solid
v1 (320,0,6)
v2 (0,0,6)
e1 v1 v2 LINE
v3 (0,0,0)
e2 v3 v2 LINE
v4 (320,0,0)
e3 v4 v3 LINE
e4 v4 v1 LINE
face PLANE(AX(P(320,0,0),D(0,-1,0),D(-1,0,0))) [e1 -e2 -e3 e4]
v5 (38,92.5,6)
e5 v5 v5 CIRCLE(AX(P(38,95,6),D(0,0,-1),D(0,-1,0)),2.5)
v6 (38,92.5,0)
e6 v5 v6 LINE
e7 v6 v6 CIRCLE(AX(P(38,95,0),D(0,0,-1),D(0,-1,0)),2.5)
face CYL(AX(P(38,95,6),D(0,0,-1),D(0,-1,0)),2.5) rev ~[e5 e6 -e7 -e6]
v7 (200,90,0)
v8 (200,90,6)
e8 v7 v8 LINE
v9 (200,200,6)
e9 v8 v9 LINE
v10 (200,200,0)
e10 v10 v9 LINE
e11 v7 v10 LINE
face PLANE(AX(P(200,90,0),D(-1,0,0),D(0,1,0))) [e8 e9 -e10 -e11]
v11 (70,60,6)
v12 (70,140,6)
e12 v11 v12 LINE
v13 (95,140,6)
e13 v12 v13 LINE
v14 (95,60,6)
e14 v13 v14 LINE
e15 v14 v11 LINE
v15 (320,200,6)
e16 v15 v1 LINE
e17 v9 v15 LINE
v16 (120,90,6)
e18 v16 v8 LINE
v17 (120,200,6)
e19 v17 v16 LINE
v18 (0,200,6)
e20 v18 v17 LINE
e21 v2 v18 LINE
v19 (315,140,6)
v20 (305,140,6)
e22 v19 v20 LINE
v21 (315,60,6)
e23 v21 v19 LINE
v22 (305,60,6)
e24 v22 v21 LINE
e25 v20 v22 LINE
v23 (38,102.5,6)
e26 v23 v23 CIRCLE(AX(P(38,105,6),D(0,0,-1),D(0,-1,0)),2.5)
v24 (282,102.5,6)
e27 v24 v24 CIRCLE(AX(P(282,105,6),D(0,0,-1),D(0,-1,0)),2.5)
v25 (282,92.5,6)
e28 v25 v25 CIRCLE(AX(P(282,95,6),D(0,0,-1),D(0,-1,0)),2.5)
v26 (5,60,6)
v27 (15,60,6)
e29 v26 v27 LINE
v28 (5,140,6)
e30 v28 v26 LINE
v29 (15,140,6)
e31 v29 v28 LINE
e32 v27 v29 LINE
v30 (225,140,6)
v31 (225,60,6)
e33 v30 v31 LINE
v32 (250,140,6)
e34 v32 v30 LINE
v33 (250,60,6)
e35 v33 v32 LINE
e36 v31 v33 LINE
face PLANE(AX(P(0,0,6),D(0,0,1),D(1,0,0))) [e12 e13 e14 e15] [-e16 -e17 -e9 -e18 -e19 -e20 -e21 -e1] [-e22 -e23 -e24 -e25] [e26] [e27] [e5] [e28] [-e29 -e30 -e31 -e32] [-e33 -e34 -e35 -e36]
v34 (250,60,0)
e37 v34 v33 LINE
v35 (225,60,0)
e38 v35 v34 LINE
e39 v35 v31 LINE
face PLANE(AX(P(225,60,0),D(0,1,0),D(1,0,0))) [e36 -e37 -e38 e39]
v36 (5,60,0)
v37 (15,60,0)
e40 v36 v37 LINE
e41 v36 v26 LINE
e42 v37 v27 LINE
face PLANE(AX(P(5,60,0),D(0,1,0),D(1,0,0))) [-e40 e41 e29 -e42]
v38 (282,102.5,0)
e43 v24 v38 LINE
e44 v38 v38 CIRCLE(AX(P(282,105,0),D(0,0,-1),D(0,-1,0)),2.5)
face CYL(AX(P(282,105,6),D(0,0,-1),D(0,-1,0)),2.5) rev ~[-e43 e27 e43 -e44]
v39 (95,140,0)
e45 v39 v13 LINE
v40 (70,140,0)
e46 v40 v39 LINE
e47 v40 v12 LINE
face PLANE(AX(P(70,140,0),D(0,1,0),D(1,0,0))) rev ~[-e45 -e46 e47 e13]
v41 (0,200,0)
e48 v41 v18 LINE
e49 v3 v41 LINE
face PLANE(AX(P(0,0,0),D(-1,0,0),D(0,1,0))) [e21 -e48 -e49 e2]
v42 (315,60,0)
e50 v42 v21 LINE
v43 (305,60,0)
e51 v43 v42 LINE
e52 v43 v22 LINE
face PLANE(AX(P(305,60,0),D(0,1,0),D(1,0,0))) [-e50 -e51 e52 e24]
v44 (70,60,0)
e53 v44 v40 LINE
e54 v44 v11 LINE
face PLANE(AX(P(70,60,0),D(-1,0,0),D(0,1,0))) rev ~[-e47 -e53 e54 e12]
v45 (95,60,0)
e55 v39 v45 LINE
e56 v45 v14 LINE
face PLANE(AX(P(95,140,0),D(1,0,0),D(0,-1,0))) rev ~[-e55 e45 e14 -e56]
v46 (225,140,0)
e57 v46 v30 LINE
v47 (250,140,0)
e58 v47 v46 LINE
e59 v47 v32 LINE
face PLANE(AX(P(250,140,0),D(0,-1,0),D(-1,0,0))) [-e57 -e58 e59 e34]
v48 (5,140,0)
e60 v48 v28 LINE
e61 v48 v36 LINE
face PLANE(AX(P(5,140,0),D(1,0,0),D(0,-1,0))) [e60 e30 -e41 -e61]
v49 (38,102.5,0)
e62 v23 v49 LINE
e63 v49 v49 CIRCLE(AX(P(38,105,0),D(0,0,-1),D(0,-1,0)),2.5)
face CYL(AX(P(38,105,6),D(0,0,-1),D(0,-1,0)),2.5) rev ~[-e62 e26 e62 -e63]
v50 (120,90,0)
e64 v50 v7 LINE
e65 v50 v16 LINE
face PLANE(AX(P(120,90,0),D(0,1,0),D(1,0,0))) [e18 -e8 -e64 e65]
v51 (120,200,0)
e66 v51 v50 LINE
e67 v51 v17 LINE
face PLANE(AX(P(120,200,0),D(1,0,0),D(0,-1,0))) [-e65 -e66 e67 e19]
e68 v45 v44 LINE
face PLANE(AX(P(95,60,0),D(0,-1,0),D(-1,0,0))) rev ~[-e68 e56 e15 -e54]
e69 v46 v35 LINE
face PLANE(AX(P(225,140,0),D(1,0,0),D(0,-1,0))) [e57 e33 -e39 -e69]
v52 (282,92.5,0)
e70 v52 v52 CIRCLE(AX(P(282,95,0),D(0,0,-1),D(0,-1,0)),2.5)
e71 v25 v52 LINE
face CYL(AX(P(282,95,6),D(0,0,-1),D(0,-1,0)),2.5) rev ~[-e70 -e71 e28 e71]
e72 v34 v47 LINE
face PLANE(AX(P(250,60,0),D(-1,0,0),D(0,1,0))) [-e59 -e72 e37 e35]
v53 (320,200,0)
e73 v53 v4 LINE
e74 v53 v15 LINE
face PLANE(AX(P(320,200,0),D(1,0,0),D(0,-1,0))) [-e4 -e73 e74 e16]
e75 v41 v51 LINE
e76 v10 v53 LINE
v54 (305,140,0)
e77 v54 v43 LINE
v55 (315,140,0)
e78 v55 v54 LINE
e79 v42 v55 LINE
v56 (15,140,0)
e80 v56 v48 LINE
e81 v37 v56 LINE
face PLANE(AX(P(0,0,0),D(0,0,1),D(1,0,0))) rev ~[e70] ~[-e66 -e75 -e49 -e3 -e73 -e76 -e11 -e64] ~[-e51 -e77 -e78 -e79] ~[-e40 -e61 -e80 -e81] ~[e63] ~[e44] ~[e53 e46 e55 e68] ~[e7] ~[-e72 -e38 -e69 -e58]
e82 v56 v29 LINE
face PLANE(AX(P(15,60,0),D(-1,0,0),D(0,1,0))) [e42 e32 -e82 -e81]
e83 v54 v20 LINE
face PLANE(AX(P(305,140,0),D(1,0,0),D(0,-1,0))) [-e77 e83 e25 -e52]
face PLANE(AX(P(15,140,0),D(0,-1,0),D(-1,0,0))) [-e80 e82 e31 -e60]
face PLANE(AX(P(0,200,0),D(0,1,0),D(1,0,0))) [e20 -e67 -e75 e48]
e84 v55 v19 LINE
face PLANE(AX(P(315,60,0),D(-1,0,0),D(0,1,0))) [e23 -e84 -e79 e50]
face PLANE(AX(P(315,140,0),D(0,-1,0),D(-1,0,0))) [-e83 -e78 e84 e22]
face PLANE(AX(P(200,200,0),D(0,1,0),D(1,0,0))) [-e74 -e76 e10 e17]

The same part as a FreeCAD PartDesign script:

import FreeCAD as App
import Part
import Sketcher

doc = App.newDocument("Part")
body = doc.addObject("PartDesign::Body", "Body")

# Sketch on XY plane
sketch1 = doc.addObject("Sketcher::SketchObject", "Sketch")
body.addObject(sketch1)
sketch1.AttachmentSupport = (doc.XY_Plane, [""])
sketch1.MapMode = "FlatFace"
sketch1.addGeometry(Part.LineSegment(App.Vector(0, 200, 0), App.Vector(0, 0, 0)), False)
sketch1.addGeometry(Part.LineSegment(App.Vector(0, 0, 0), App.Vector(320, 0, 0)), False)
sketch1.addGeometry(Part.LineSegment(App.Vector(320, 0, 0), App.Vector(320, 200, 0)), False)
sketch1.addGeometry(Part.LineSegment(App.Vector(320, 200, 0), App.Vector(200, 200, 0)), False)
sketch1.addGeometry(Part.LineSegment(App.Vector(200, 200, 0), App.Vector(200, 90, 0)), False)
sketch1.addGeometry(Part.LineSegment(App.Vector(200, 90, 0), App.Vector(120, 90, 0)), False)
sketch1.addGeometry(Part.LineSegment(App.Vector(120, 90, 0), App.Vector(120, 200, 0)), False)
sketch1.addGeometry(Part.LineSegment(App.Vector(120, 200, 0), App.Vector(0, 200, 0)), False)
sketch1.addGeometry(Part.LineSegment(App.Vector(15, 60, 0), App.Vector(5, 60, 0)), False)
sketch1.addGeometry(Part.LineSegment(App.Vector(5, 60, 0), App.Vector(5, 140, 0)), False)
sketch1.addGeometry(Part.LineSegment(App.Vector(5, 140, 0), App.Vector(15, 140, 0)), False)
sketch1.addGeometry(Part.LineSegment(App.Vector(15, 140, 0), App.Vector(15, 60, 0)), False)
sketch1.addGeometry(Part.LineSegment(App.Vector(70, 60, 0), App.Vector(70, 140, 0)), False)
sketch1.addGeometry(Part.LineSegment(App.Vector(70, 140, 0), App.Vector(95, 140, 0)), False)
sketch1.addGeometry(Part.LineSegment(App.Vector(95, 140, 0), App.Vector(95, 60, 0)), False)
sketch1.addGeometry(Part.LineSegment(App.Vector(95, 60, 0), App.Vector(70, 60, 0)), False)
sketch1.addGeometry(Part.LineSegment(App.Vector(225, 140, 0), App.Vector(250, 140, 0)), False)
sketch1.addGeometry(Part.LineSegment(App.Vector(250, 140, 0), App.Vector(250, 60, 0)), False)
sketch1.addGeometry(Part.LineSegment(App.Vector(250, 60, 0), App.Vector(225, 60, 0)), False)
sketch1.addGeometry(Part.LineSegment(App.Vector(225, 60, 0), App.Vector(225, 140, 0)), False)
sketch1.addGeometry(Part.LineSegment(App.Vector(305, 140, 0), App.Vector(315, 140, 0)), False)
sketch1.addGeometry(Part.LineSegment(App.Vector(315, 140, 0), App.Vector(315, 60, 0)), False)
sketch1.addGeometry(Part.LineSegment(App.Vector(315, 60, 0), App.Vector(305, 60, 0)), False)
sketch1.addGeometry(Part.LineSegment(App.Vector(305, 60, 0), App.Vector(305, 140, 0)), False)
sketch1.addConstraint(Sketcher.Constraint("Coincident", 0, 2, 1, 1))
sketch1.addConstraint(Sketcher.Constraint("Coincident", 1, 2, 2, 1))
sketch1.addConstraint(Sketcher.Constraint("Coincident", 2, 2, 3, 1))
sketch1.addConstraint(Sketcher.Constraint("Coincident", 3, 2, 4, 1))
sketch1.addConstraint(Sketcher.Constraint("Coincident", 4, 2, 5, 1))
sketch1.addConstraint(Sketcher.Constraint("Coincident", 5, 2, 6, 1))
sketch1.addConstraint(Sketcher.Constraint("Coincident", 6, 2, 7, 1))
sketch1.addConstraint(Sketcher.Constraint("Coincident", 7, 2, 0, 1))
sketch1.addConstraint(Sketcher.Constraint("Coincident", 8, 2, 9, 1))
sketch1.addConstraint(Sketcher.Constraint("Coincident", 9, 2, 10, 1))
sketch1.addConstraint(Sketcher.Constraint("Coincident", 10, 2, 11, 1))
sketch1.addConstraint(Sketcher.Constraint("Coincident", 11, 2, 8, 1))
sketch1.addConstraint(Sketcher.Constraint("Coincident", 12, 2, 13, 1))
sketch1.addConstraint(Sketcher.Constraint("Coincident", 13, 2, 14, 1))
sketch1.addConstraint(Sketcher.Constraint("Coincident", 14, 2, 15, 1))
sketch1.addConstraint(Sketcher.Constraint("Coincident", 15, 2, 12, 1))
sketch1.addConstraint(Sketcher.Constraint("Coincident", 16, 2, 17, 1))
sketch1.addConstraint(Sketcher.Constraint("Coincident", 17, 2, 18, 1))
sketch1.addConstraint(Sketcher.Constraint("Coincident", 18, 2, 19, 1))
sketch1.addConstraint(Sketcher.Constraint("Coincident", 19, 2, 16, 1))
sketch1.addConstraint(Sketcher.Constraint("Coincident", 20, 2, 21, 1))
sketch1.addConstraint(Sketcher.Constraint("Coincident", 21, 2, 22, 1))
sketch1.addConstraint(Sketcher.Constraint("Coincident", 22, 2, 23, 1))
sketch1.addConstraint(Sketcher.Constraint("Coincident", 23, 2, 20, 1))
sketch1.addConstraint(Sketcher.Constraint("Vertical", 0))
sketch1.addConstraint(Sketcher.Constraint("Horizontal", 1))
sketch1.addConstraint(Sketcher.Constraint("Vertical", 2))
sketch1.addConstraint(Sketcher.Constraint("Horizontal", 3))
sketch1.addConstraint(Sketcher.Constraint("Vertical", 4))
sketch1.addConstraint(Sketcher.Constraint("Horizontal", 5))
sketch1.addConstraint(Sketcher.Constraint("Vertical", 6))
sketch1.addConstraint(Sketcher.Constraint("Horizontal", 7))
sketch1.addConstraint(Sketcher.Constraint("Horizontal", 8))
sketch1.addConstraint(Sketcher.Constraint("Vertical", 9))
sketch1.addConstraint(Sketcher.Constraint("Horizontal", 10))
sketch1.addConstraint(Sketcher.Constraint("Vertical", 11))
sketch1.addConstraint(Sketcher.Constraint("Vertical", 12))
sketch1.addConstraint(Sketcher.Constraint("Horizontal", 13))
sketch1.addConstraint(Sketcher.Constraint("Vertical", 14))
sketch1.addConstraint(Sketcher.Constraint("Horizontal", 15))
sketch1.addConstraint(Sketcher.Constraint("Horizontal", 16))
sketch1.addConstraint(Sketcher.Constraint("Vertical", 17))
sketch1.addConstraint(Sketcher.Constraint("Horizontal", 18))
sketch1.addConstraint(Sketcher.Constraint("Vertical", 19))
sketch1.addConstraint(Sketcher.Constraint("Horizontal", 20))
sketch1.addConstraint(Sketcher.Constraint("Vertical", 21))
sketch1.addConstraint(Sketcher.Constraint("Horizontal", 22))
sketch1.addConstraint(Sketcher.Constraint("Vertical", 23))
sketch1.addConstraint(Sketcher.Constraint("Coincident", 0, 2, -1, 1))
sketch1.addConstraint(Sketcher.Constraint("Horizontal", 3, 2, 6, 2))
sketch1.addConstraint(Sketcher.Constraint("Horizontal", 10, 2, 12, 2))
sketch1.addConstraint(Sketcher.Constraint("Horizontal", 11, 2, 14, 2))
sketch1.addConstraint(Sketcher.Constraint("Horizontal", 13, 2, 16, 2))
sketch1.addConstraint(Sketcher.Constraint("Horizontal", 15, 2, 17, 2))
sketch1.addConstraint(Sketcher.Constraint("Horizontal", 19, 2, 20, 2))
sketch1.addConstraint(Sketcher.Constraint("Horizontal", 18, 2, 21, 2))
sketch1.addConstraint(Sketcher.Constraint("Equal", 3, 7))
sketch1.addConstraint(Sketcher.Constraint("Equal", 15, 16))
sketch1.addConstraint(Sketcher.Constraint("Equal", 10, 20))
sketch1.addConstraint(Sketcher.Constraint("Equal", 5, 9))
sketch1.addConstraint(Sketcher.Constraint("DistanceX", 1, 1, 1, 2, 320.0))
sketch1.addConstraint(Sketcher.Constraint("DistanceX", 5, 2, 5, 1, 80.0))
sketch1.addConstraint(Sketcher.Constraint("DistanceX", 8, 2, 8, 1, 10.0))
sketch1.addConstraint(Sketcher.Constraint("DistanceX", 13, 1, 13, 2, 25.0))
sketch1.addConstraint(Sketcher.Constraint("DistanceY", 0, 2, 0, 1, 200.0))
sketch1.addConstraint(Sketcher.Constraint("DistanceY", 4, 2, 4, 1, 110.0))
sketch1.addConstraint(Sketcher.Constraint("DistanceX", -1, 1, 8, 2, 5.0))
sketch1.addConstraint(Sketcher.Constraint("DistanceY", -1, 1, 8, 2, 60.0))
sketch1.addConstraint(Sketcher.Constraint("DistanceX", 10, 2, 12, 2, 55.0))
sketch1.addConstraint(Sketcher.Constraint("DistanceX", 4, 2, 18, 2, 25.0))
sketch1.addConstraint(Sketcher.Constraint("DistanceX", 20, 2, 2, 2, 5.0))
pad1 = doc.addObject("PartDesign::Pad", "Pad")
body.addObject(pad1)
pad1.Profile = sketch1
pad1.Length = 6

# Sketch on XY plane
sketch2 = doc.addObject("Sketcher::SketchObject", "Sketch001")
body.addObject(sketch2)
sketch2.AttachmentSupport = (doc.XY_Plane, [""])
sketch2.MapMode = "FlatFace"
sketch2.AttachmentOffset = App.Placement(App.Vector(0, 0, 6), App.Rotation())
sketch2.addGeometry(Part.Circle(App.Vector(38, 105, 0), App.Vector(0, 0, 1), 2.5), False)
sketch2.addConstraint(Sketcher.Constraint("Diameter", 0, 5.0))
sketch2.addConstraint(Sketcher.Constraint("DistanceX", -1, 1, 0, 3, 38.0))
sketch2.addConstraint(Sketcher.Constraint("DistanceY", -1, 1, 0, 3, 105.0))
doc.recompute()
hole = doc.addObject("PartDesign::Hole", "Hole")
body.addObject(hole)
hole.Profile = sketch2
hole.ThreadType = "None"
hole.Diameter = 5
hole.DepthType = "Dimension"
hole.Depth = 8
hole.DrillPoint = "Angled"
hole.DrillPointAngle = 118

# Sketch on XY plane
sketch3 = doc.addObject("Sketcher::SketchObject", "Sketch002")
body.addObject(sketch3)
sketch3.AttachmentSupport = (doc.XY_Plane, [""])
sketch3.MapMode = "FlatFace"
sketch3.AttachmentOffset = App.Placement(App.Vector(0, 0, 6), App.Rotation())
sketch3.addGeometry(Part.Circle(App.Vector(38, 95, 0), App.Vector(0, 0, 1), 2.5), False)
sketch3.addConstraint(Sketcher.Constraint("Diameter", 0, 5.0))
sketch3.addConstraint(Sketcher.Constraint("DistanceX", -1, 1, 0, 3, 38.0))
sketch3.addConstraint(Sketcher.Constraint("DistanceY", -1, 1, 0, 3, 95.0))
doc.recompute()
hole2 = doc.addObject("PartDesign::Hole", "Hole001")
body.addObject(hole2)
hole2.Profile = sketch3
hole2.ThreadType = "None"
hole2.Diameter = 5
hole2.DepthType = "Dimension"
hole2.Depth = 8
hole2.DrillPoint = "Angled"
hole2.DrillPointAngle = 118

# Sketch on XY plane
sketch4 = doc.addObject("Sketcher::SketchObject", "Sketch003")
body.addObject(sketch4)
sketch4.AttachmentSupport = (doc.XY_Plane, [""])
sketch4.MapMode = "FlatFace"
sketch4.AttachmentOffset = App.Placement(App.Vector(0, 0, 6), App.Rotation())
sketch4.addGeometry(Part.Circle(App.Vector(282, 105, 0), App.Vector(0, 0, 1), 2.5), False)
sketch4.addConstraint(Sketcher.Constraint("Diameter", 0, 5.0))
sketch4.addConstraint(Sketcher.Constraint("DistanceX", -1, 1, 0, 3, 282.0))
sketch4.addConstraint(Sketcher.Constraint("DistanceY", -1, 1, 0, 3, 105.0))
doc.recompute()
hole3 = doc.addObject("PartDesign::Hole", "Hole002")
body.addObject(hole3)
hole3.Profile = sketch4
hole3.ThreadType = "None"
hole3.Diameter = 5
hole3.DepthType = "Dimension"
hole3.Depth = 8
hole3.DrillPoint = "Angled"
hole3.DrillPointAngle = 118

# Sketch on XY plane
sketch5 = doc.addObject("Sketcher::SketchObject", "Sketch004")
body.addObject(sketch5)
sketch5.AttachmentSupport = (doc.XY_Plane, [""])
sketch5.MapMode = "FlatFace"
sketch5.AttachmentOffset = App.Placement(App.Vector(0, 0, 6), App.Rotation())
sketch5.addGeometry(Part.Circle(App.Vector(282, 95, 0), App.Vector(0, 0, 1), 2.5), False)
sketch5.addConstraint(Sketcher.Constraint("Diameter", 0, 5.0))
sketch5.addConstraint(Sketcher.Constraint("DistanceX", -1, 1, 0, 3, 282.0))
sketch5.addConstraint(Sketcher.Constraint("DistanceY", -1, 1, 0, 3, 95.0))
doc.recompute()
hole4 = doc.addObject("PartDesign::Hole", "Hole003")
body.addObject(hole4)
hole4.Profile = sketch5
hole4.ThreadType = "None"
hole4.Diameter = 5
hole4.DepthType = "Dimension"
hole4.Depth = 8
hole4.DrillPoint = "Angled"
hole4.DrillPointAngle = 118

doc.recompute()
